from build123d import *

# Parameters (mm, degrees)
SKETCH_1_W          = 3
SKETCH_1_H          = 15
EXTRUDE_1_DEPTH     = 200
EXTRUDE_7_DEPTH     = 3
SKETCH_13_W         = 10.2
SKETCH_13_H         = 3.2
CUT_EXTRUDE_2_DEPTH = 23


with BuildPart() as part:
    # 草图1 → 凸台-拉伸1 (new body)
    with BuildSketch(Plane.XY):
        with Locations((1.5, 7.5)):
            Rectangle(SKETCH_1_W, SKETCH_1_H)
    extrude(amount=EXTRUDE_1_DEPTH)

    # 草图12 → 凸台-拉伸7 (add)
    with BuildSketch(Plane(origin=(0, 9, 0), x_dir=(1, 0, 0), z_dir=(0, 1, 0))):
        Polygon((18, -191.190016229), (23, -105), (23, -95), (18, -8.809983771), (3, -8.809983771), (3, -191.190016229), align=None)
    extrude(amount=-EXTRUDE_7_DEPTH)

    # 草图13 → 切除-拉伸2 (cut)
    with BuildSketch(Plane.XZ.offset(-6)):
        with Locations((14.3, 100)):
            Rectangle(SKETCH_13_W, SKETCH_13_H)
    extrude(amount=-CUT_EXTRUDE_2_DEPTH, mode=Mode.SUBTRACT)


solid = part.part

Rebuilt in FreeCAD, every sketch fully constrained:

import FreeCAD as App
import Part
import Sketcher
from FreeCAD import Vector

doc = App.newDocument("Part")
body = doc.addObject("PartDesign::Body", "Body")

# Sketch on XY plane
sketch1 = body.newObject("Sketcher::SketchObject", "Sketch")
sketch1.AttachmentSupport = (doc.getObject("XY_Plane"), [""])
sketch1.MapMode = "FlatFace"
sketch1.addGeometry(Part.LineSegment(Vector(0, 15, 0), Vector(0, 0, 0)), False)
sketch1.addGeometry(Part.LineSegment(Vector(0, 0, 0), Vector(3, 0, 0)), False)
sketch1.addGeometry(Part.LineSegment(Vector(3, 0, 0), Vector(3, 15, 0)), False)
sketch1.addGeometry(Part.LineSegment(Vector(3, 15, 0), Vector(0, 15, 0)), False)
sketch1.addConstraint(Sketcher.Constraint("Coincident", 0, 2, 1, 1))
sketch1.addConstraint(Sketcher.Constraint("Coincident", 1, 2, 2, 1))
sketch1.addConstraint(Sketcher.Constraint("Coincident", 2, 2, 3, 1))
sketch1.addConstraint(Sketcher.Constraint("Coincident", 3, 2, 0, 1))
sketch1.addConstraint(Sketcher.Constraint("Vertical", 0))
sketch1.addConstraint(Sketcher.Constraint("Horizontal", 1))
sketch1.addConstraint(Sketcher.Constraint("Vertical", 2))
sketch1.addConstraint(Sketcher.Constraint("Horizontal", 3))
sketch1.addConstraint(Sketcher.Constraint("Coincident", 0, 2, -1, 1))
sketch1.addConstraint(Sketcher.Constraint("DistanceX", 1, 1, 1, 2, 3.0))
sketch1.addConstraint(Sketcher.Constraint("DistanceY", 0, 2, 0, 1, 15.0))
pad1 = body.newObject("PartDesign::Pad", "Pad")
pad1.Profile = sketch1
pad1.Length = 200

# Sketch on XZ plane
sketch2 = body.newObject("Sketcher::SketchObject", "Sketch001")
sketch2.AttachmentSupport = (doc.getObject("XZ_Plane"), [""])
sketch2.MapMode = "FlatFace"
sketch2.AttachmentOffset = App.Placement(Vector(0, 0, -9), App.Rotation())
sketch2.addGeometry(Part.LineSegment(Vector(18, 191, 0), Vector(23, 105, 0)), False)
sketch2.addGeometry(Part.LineSegment(Vector(23, 105, 0), Vector(23, 95, 0)), False)
sketch2.addGeometry(Part.LineSegment(Vector(23, 95, 0), Vector(18, 9, 0)), False)
sketch2.addGeometry(Part.LineSegment(Vector(18, 9, 0), Vector(3, 9, 0)), False)
sketch2.addGeometry(Part.LineSegment(Vector(3, 9, 0), Vector(3, 191, 0)), False)
sketch2.addGeometry(Part.LineSegment(Vector(3, 191, 0), Vector(18, 191, 0)), False)
sketch2.addConstraint(Sketcher.Constraint("Coincident", 0, 2, 1, 1))
sketch2.addConstraint(Sketcher.Constraint("Coincident", 1, 2, 2, 1))
sketch2.addConstraint(Sketcher.Constraint("Coincident", 2, 2, 3, 1))
sketch2.addConstraint(Sketcher.Constraint("Coincident", 3, 2, 4, 1))
sketch2.addConstraint(Sketcher.Constraint("Coincident", 4, 2, 5, 1))
sketch2.addConstraint(Sketcher.Constraint("Coincident", 5, 2, 0, 1))
sketch2.addConstraint(Sketcher.Constraint("Vertical", 1))
sketch2.addConstraint(Sketcher.Constraint("Horizontal", 3))
sketch2.addConstraint(Sketcher.Constraint("Vertical", 4))
sketch2.addConstraint(Sketcher.Constraint("Horizontal", 5))
sketch2.addConstraint(Sketcher.Constraint("Vertical", 2, 2, 5, 2))
sketch2.addConstraint(Sketcher.Constraint("Equal", 0, 2))
sketch2.addConstraint(Sketcher.Constraint("DistanceX", 3, 2, 3, 1, 15.0))
sketch2.addConstraint(Sketcher.Constraint("DistanceY", 1, 2, 1, 1, 10.0))
sketch2.addConstraint(Sketcher.Constraint("DistanceX", -1, 1, 0, 2, 23.0))
sketch2.addConstraint(Sketcher.Constraint("DistanceY", -1, 1, 0, 2, 105.0))
sketch2.addConstraint(Sketcher.Constraint("DistanceX", -1, 1, 2, 2, 18.0))
sketch2.addConstraint(Sketcher.Constraint("DistanceY", 4, 1, 4, 2, 182.380032))
pad2 = body.newObject("PartDesign::Pad", "Pad001")
pad2.Profile = sketch2
pad2.Length = 3

# Sketch on XZ plane
sketch3 = body.newObject("Sketcher::SketchObject", "Sketch002")
sketch3.AttachmentSupport = (doc.getObject("XZ_Plane"), [""])
sketch3.MapMode = "FlatFace"
sketch3.AttachmentOffset = App.Placement(Vector(0, 0, -6), App.Rotation())
sketch3.addGeometry(Part.LineSegment(Vector(9.2, 101.6, 0), Vector(9.2, 98.4, 0)), False)
sketch3.addGeometry(Part.LineSegment(Vector(9.2, 98.4, 0), Vector(19.4, 98.4, 0)), False)
sketch3.addGeometry(Part.LineSegment(Vector(19.4, 98.4, 0), Vector(19.4, 101.6, 0)), False)
sketch3.addGeometry(Part.LineSegment(Vector(19.4, 101.6, 0), Vector(9.2, 101.6, 0)), False)
sketch3.addConstraint(Sketcher.Constraint("Coincident", 0, 2, 1, 1))
sketch3.addConstraint(Sketcher.Constraint("Coincident", 1, 2, 2, 1))
sketch3.addConstraint(Sketcher.Constraint("Coincident", 2, 2, 3, 1))
sketch3.addConstraint(Sketcher.Constraint("Coincident", 3, 2, 0, 1))
sketch3.addConstraint(Sketcher.Constraint("Vertical", 0))
sketch3.addConstraint(Sketcher.Constraint("Horizontal", 1))
sketch3.addConstraint(Sketcher.Constraint("Vertical", 2))
sketch3.addConstraint(Sketcher.Constraint("Horizontal", 3))
sketch3.addConstraint(Sketcher.Constraint("DistanceX", 1, 1, 1, 2, 10.2))
sketch3.addConstraint(Sketcher.Constraint("DistanceY", 0, 2, 0, 1, 3.2))
sketch3.addConstraint(Sketcher.Constraint("DistanceX", -1, 1, 0, 2, 9.2))
sketch3.addConstraint(Sketcher.Constraint("DistanceY", -1, 1, 0, 2, 98.4))
pocket1 = body.newObject("PartDesign::Pocket", "Pocket")
pocket1.Profile = sketch3
pocket1.Length = 23

doc.recompute()
